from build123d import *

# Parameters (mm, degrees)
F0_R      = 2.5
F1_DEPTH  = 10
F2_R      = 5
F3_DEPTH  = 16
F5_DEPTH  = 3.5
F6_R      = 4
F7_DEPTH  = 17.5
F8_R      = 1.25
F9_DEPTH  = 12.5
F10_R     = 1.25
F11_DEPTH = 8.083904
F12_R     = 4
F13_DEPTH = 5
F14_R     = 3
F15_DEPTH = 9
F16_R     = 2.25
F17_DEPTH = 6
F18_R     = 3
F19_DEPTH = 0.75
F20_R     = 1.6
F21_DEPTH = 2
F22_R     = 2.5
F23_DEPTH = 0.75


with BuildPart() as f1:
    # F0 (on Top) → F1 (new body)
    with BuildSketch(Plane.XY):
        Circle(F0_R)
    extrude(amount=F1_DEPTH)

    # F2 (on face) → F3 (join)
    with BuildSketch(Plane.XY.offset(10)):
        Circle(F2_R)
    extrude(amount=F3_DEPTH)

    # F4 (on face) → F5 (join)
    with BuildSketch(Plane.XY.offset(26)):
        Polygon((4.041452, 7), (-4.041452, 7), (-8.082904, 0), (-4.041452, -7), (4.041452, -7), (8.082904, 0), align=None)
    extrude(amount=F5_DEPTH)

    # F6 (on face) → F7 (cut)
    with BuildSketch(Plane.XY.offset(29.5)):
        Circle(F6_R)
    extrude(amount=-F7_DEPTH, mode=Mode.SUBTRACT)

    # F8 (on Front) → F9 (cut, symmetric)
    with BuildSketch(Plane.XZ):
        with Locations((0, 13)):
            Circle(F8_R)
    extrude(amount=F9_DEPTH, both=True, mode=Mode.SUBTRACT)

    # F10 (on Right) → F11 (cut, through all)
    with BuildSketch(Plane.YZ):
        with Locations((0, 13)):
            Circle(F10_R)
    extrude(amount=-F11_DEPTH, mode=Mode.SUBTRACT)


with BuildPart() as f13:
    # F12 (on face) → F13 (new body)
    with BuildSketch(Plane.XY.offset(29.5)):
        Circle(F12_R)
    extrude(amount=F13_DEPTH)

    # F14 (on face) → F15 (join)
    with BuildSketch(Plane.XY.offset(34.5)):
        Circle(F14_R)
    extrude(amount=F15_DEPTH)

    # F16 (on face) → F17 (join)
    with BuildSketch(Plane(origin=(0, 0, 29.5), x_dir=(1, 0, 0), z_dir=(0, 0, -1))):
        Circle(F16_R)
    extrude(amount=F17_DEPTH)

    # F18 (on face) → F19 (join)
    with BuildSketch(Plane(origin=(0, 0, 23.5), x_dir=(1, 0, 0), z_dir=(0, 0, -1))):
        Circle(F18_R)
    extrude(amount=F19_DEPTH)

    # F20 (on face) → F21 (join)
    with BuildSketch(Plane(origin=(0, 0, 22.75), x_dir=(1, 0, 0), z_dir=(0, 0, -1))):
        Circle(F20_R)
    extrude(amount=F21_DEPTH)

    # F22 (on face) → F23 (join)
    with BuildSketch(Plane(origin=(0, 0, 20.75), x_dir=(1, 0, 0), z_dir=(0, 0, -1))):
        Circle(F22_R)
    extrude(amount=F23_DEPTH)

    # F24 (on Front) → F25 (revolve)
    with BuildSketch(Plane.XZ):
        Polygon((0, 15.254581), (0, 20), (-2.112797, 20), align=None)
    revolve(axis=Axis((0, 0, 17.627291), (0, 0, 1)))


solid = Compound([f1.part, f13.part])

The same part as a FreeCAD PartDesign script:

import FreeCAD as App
import Part
import Sketcher
Q = App.Units.Quantity


def add_polygon(sketch, points):
    """Adds a closed chain of lines whose ends are joined by coincident constraints."""
    first, n = sketch.GeometryCount, len(points)
    for a, b in zip(points, points[1:] + points[:1]):
        sketch.addGeometry(Part.LineSegment(App.Vector(*a, 0), App.Vector(*b, 0)), False)
    for i in range(n):
        sketch.addConstraint(Sketcher.Constraint("Coincident", first + i, 2, first + (i + 1) % n, 1))

doc = App.newDocument("Part")
body = doc.addObject("PartDesign::Body", "Body")

sketch1 = doc.addObject("Sketcher::SketchObject", "Sketch")
body.addObject(sketch1)
sketch1.AttachmentSupport = (doc.XY_Plane, [""])
sketch1.MapMode = "FlatFace"
sketch1.addGeometry(Part.Circle(App.Vector(0, 0, 0), App.Vector(0, 0, 1), 2.5), False)
sketch1.addConstraint([
    Sketcher.Constraint("Coincident", 0, 3, -1, 1),
    Sketcher.Constraint("Diameter", 0, Q("5 mm")),
])
pad1 = doc.addObject("PartDesign::Pad", "Pad")
body.addObject(pad1)
pad1.Profile = sketch1
pad1.Length = 10

sketch2 = doc.addObject("Sketcher::SketchObject", "Sketch001")
body.addObject(sketch2)
sketch2.AttachmentSupport = (doc.XY_Plane, [""])
sketch2.MapMode = "FlatFace"
sketch2.AttachmentOffset = App.Placement(App.Vector(0, 0, 10), App.Rotation())
sketch2.addGeometry(Part.Circle(App.Vector(0, 0, 0), App.Vector(0, 0, 1), 5), False)
sketch2.addConstraint([
    Sketcher.Constraint("Coincident", 0, 3, -1, 1),
    Sketcher.Constraint("Diameter", 0, Q("10 mm")),
])
pad2 = doc.addObject("PartDesign::Pad", "Pad001")
body.addObject(pad2)
pad2.Profile = sketch2
pad2.Length = 16

sketch3 = doc.addObject("Sketcher::SketchObject", "Sketch002")
body.addObject(sketch3)
sketch3.AttachmentSupport = (doc.XY_Plane, [""])
sketch3.MapMode = "FlatFace"
sketch3.AttachmentOffset = App.Placement(App.Vector(0, 0, 26), App.Rotation())
add_polygon(sketch3, [(4.041452, 7), (-4.041452, 7), (-8.082904, 0), (-4.041452, -7), (4.041452, -7), (8.082904, 0)])
sketch3.addConstraint([
    Sketcher.Constraint("Horizontal", 0),
    Sketcher.Constraint("Horizontal", 3),
    Sketcher.Constraint("Symmetric", 0, 2, 3, 2, -1, 1),
    Sketcher.Constraint("Symmetric", 1, 2, 4, 2, -1, 1),
    Sketcher.Constraint("PointOnObject", 1, 2, -1),
    Sketcher.Constraint("Parallel", 2, 5),
    Sketcher.Constraint("Vertical", 0, 2, 2, 2),
    Sketcher.Constraint("Angle", 1, Q("-120.000001 deg")),
    Sketcher.Constraint("DistanceY", -1, 1, 0, 2, Q("7 mm")),
    Sketcher.Constraint("DistanceX", 0, 2, 0, 1, Q("8.082904 mm")),
])
pad3 = doc.addObject("PartDesign::Pad", "Pad002")
body.addObject(pad3)
pad3.Profile = sketch3
pad3.Length = 3.5

sketch4 = doc.addObject("Sketcher::SketchObject", "Sketch003")
body.addObject(sketch4)
sketch4.AttachmentSupport = (doc.XY_Plane, [""])
sketch4.MapMode = "FlatFace"
sketch4.AttachmentOffset = App.Placement(App.Vector(0, 0, 29.5), App.Rotation())
sketch4.addGeometry(Part.Circle(App.Vector(0, 0, 0), App.Vector(0, 0, 1), 4), False)
sketch4.addConstraint([
    Sketcher.Constraint("Coincident", 0, 3, -1, 1),
    Sketcher.Constraint("Diameter", 0, Q("8 mm")),
])
pocket1 = doc.addObject("PartDesign::Pocket", "Pocket")
body.addObject(pocket1)
pocket1.Profile = sketch4
pocket1.Length = 17.5

sketch5 = doc.addObject("Sketcher::SketchObject", "Sketch004")
body.addObject(sketch5)
sketch5.AttachmentSupport = (doc.XZ_Plane, [""])
sketch5.MapMode = "FlatFace"
sketch5.addGeometry(Part.Circle(App.Vector(0, 13, 0), App.Vector(0, 0, 1), 1.25), False)
sketch5.addConstraint([
    Sketcher.Constraint("PointOnObject", 0, 3, -2),
    Sketcher.Constraint("Diameter", 0, Q("2.5 mm")),
    Sketcher.Constraint("DistanceY", -1, 1, 0, 3, Q("13 mm")),
])
pocket2 = doc.addObject("PartDesign::Pocket", "Pocket001")
body.addObject(pocket2)
pocket2.Profile = sketch5
pocket2.Length = 25
pocket2.Midplane = True

sketch6 = doc.addObject("Sketcher::SketchObject", "Sketch005")
body.addObject(sketch6)
sketch6.AttachmentSupport = (doc.YZ_Plane, [""])
sketch6.MapMode = "FlatFace"
sketch6.addGeometry(Part.Circle(App.Vector(0, 13, 0), App.Vector(0, 0, 1), 1.25), False)
sketch6.addConstraint([
    Sketcher.Constraint("PointOnObject", 0, 3, -2),
    Sketcher.Constraint("Diameter", 0, Q("2.5 mm")),
    Sketcher.Constraint("DistanceY", -1, 1, 0, 3, Q("13 mm")),
])
pocket3 = doc.addObject("PartDesign::Pocket", "Pocket002")
body.addObject(pocket3)
pocket3.Profile = sketch6
pocket3.Type = "ThroughAll"
body2 = doc.addObject("PartDesign::Body", "Body001")

sketch7 = doc.addObject("Sketcher::SketchObject", "Sketch006")
body2.addObject(sketch7)
sketch7.AttachmentSupport = (doc.getObject("XY_Plane001"), [""])
sketch7.MapMode = "FlatFace"
sketch7.AttachmentOffset = App.Placement(App.Vector(0, 0, 29.5), App.Rotation())
sketch7.addGeometry(Part.Circle(App.Vector(0, 0, 0), App.Vector(0, 0, 1), 4), False)
sketch7.addConstraint([
    Sketcher.Constraint("Coincident", 0, 3, -1, 1),
    Sketcher.Constraint("Diameter", 0, Q("8 mm")),
])
pad4 = doc.addObject("PartDesign::Pad", "Pad003")
body2.addObject(pad4)
pad4.Profile = sketch7
pad4.Length = 5

sketch8 = doc.addObject("Sketcher::SketchObject", "Sketch007")
body2.addObject(sketch8)
sketch8.AttachmentSupport = (doc.getObject("XY_Plane001"), [""])
sketch8.MapMode = "FlatFace"
sketch8.AttachmentOffset = App.Placement(App.Vector(0, 0, 34.5), App.Rotation())
sketch8.addGeometry(Part.Circle(App.Vector(0, 0, 0), App.Vector(0, 0, 1), 3), False)
sketch8.addConstraint([
    Sketcher.Constraint("Coincident", 0, 3, -1, 1),
    Sketcher.Constraint("Diameter", 0, Q("6 mm")),
])
pad5 = doc.addObject("PartDesign::Pad", "Pad004")
body2.addObject(pad5)
pad5.Profile = sketch8
pad5.Length = 9

sketch9 = doc.addObject("Sketcher::SketchObject", "Sketch008")
body2.addObject(sketch9)
sketch9.AttachmentSupport = (doc.getObject("XY_Plane001"), [""])
sketch9.MapMode = "FlatFace"
sketch9.AttachmentOffset = App.Placement(App.Vector(0, 0, 29.5), App.Rotation())
sketch9.addGeometry(Part.Circle(App.Vector(0, 0, 0), App.Vector(0, 0, 1), 2.25), False)
sketch9.addConstraint([
    Sketcher.Constraint("Coincident", 0, 3, -1, 1),
    Sketcher.Constraint("Diameter", 0, Q("4.5 mm")),
])
pad6 = doc.addObject("PartDesign::Pad", "Pad005")
body2.addObject(pad6)
pad6.Profile = sketch9
pad6.Length = 6
pad6.Reversed = True

sketch10 = doc.addObject("Sketcher::SketchObject", "Sketch009")
body2.addObject(sketch10)
sketch10.AttachmentSupport = (doc.getObject("XY_Plane001"), [""])
sketch10.MapMode = "FlatFace"
sketch10.AttachmentOffset = App.Placement(App.Vector(0, 0, 23.5), App.Rotation())
sketch10.addGeometry(Part.Circle(App.Vector(0, 0, 0), App.Vector(0, 0, 1), 3), False)
sketch10.addConstraint([
    Sketcher.Constraint("Coincident", 0, 3, -1, 1),
    Sketcher.Constraint("Diameter", 0, Q("6 mm")),
])
pad7 = doc.addObject("PartDesign::Pad", "Pad006")
body2.addObject(pad7)
pad7.Profile = sketch10
pad7.Length = 0.75
pad7.Reversed = True

sketch11 = doc.addObject("Sketcher::SketchObject", "Sketch010")
body2.addObject(sketch11)
sketch11.AttachmentSupport = (doc.getObject("XY_Plane001"), [""])
sketch11.MapMode = "FlatFace"
sketch11.AttachmentOffset = App.Placement(App.Vector(0, 0, 22.75), App.Rotation())
sketch11.addGeometry(Part.Circle(App.Vector(0, 0, 0), App.Vector(0, 0, 1), 1.6), False)
sketch11.addConstraint([
    Sketcher.Constraint("Coincident", 0, 3, -1, 1),
    Sketcher.Constraint("Diameter", 0, Q("3.2 mm")),
])
pad8 = doc.addObject("PartDesign::Pad", "Pad007")
body2.addObject(pad8)
pad8.Profile = sketch11
pad8.Length = 2
pad8.Reversed = True

sketch12 = doc.addObject("Sketcher::SketchObject", "Sketch011")
body2.addObject(sketch12)
sketch12.AttachmentSupport = (doc.getObject("XY_Plane001"), [""])
sketch12.MapMode = "FlatFace"
sketch12.AttachmentOffset = App.Placement(App.Vector(0, 0, 20.75), App.Rotation())
sketch12.addGeometry(Part.Circle(App.Vector(0, 0, 0), App.Vector(0, 0, 1), 2.5), False)
sketch12.addConstraint([
    Sketcher.Constraint("Coincident", 0, 3, -1, 1),
    Sketcher.Constraint("Diameter", 0, Q("5 mm")),
])
pad9 = doc.addObject("PartDesign::Pad", "Pad008")
body2.addObject(pad9)
pad9.Profile = sketch12
pad9.Length = 0.75
pad9.Reversed = True

sketch13 = doc.addObject("Sketcher::SketchObject", "Sketch012")
body2.addObject(sketch13)
sketch13.AttachmentSupport = (doc.getObject("XZ_Plane001"), [""])
sketch13.MapMode = "FlatFace"
add_polygon(sketch13, [(0, 15.254581), (0, 20), (-2.112797, 20)])
sketch13.addConstraint([
    Sketcher.Constraint("Vertical", 0),
    Sketcher.Constraint("Horizontal", 1),
    Sketcher.Constraint("PointOnObject", 0, 2, -2),
    Sketcher.Constraint("Angle", 2, Q("-65.999997 deg")),
    Sketcher.Constraint("DistanceY", -1, 1, 0, 2, Q("20 mm")),
    Sketcher.Constraint("DistanceY", 0, 1, 0, 2, Q("4.745419 mm")),
])
revolution = doc.addObject("PartDesign::Revolution", "Revolution")
body2.addObject(revolution)
revolution.Profile = sketch13
revolution.ReferenceAxis = (sketch13, ["V_Axis"])
revolution.Angle = 360

doc.recompute()
